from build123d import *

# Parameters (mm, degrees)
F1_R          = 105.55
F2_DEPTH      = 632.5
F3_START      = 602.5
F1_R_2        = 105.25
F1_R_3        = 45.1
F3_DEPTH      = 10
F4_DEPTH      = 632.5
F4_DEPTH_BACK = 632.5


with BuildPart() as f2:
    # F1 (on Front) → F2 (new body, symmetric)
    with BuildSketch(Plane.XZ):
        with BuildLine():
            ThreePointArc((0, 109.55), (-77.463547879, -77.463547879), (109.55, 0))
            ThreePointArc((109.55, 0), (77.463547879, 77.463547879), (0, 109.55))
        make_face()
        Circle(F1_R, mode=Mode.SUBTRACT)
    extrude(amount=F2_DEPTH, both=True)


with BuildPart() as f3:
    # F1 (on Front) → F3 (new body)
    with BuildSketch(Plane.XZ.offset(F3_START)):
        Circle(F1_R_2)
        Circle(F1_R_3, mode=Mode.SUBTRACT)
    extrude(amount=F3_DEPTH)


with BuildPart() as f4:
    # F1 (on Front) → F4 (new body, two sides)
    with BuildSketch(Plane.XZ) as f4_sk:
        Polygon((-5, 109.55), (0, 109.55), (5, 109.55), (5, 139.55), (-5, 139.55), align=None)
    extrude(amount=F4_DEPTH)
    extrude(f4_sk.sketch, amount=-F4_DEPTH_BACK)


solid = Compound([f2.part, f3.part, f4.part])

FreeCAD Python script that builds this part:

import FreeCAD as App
import Part
import Sketcher

V = App.Vector


def add_polygon(sketch, points):
    """Adds a closed chain of lines whose ends are joined by coincident constraints."""
    first, n = sketch.GeometryCount, len(points)
    for a, b in zip(points, points[1:] + points[:1]):
        sketch.addGeometry(Part.LineSegment(App.Vector(*a, 0), App.Vector(*b, 0)), False)
    for i in range(n):
        sketch.addConstraint(Sketcher.Constraint("Coincident", first + i, 2, first + (i + 1) % n, 1))

doc = App.newDocument("Part")
body = doc.addObject("PartDesign::Body", "Body")

sketch1 = body.newObject("Sketcher::SketchObject", "Sketch")
sketch1.AttachmentSupport = (doc.getObject("XZ_Plane"), [""])
sketch1.MapMode = "FlatFace"
sketch1.addGeometry(Part.Circle(V(0, 0, 0), V(0, 0, 1), 110), False)
sketch1.addGeometry(Part.Circle(V(0, 0, 0), V(0, 0, 1), 106), False)
sketch1.addConstraint(Sketcher.Constraint("Coincident", 0, 3, -1, 1))
sketch1.addConstraint(Sketcher.Constraint("Coincident", 1, 3, -1, 1))
sketch1.addConstraint(Sketcher.Constraint("Diameter", 0, 219.1))
sketch1.addConstraint(Sketcher.Constraint("Diameter", 1, 211.1))
pad1 = body.newObject("PartDesign::Pad", "Pad")
pad1.Profile = sketch1
pad1.Length = 1265
pad1.Midplane = True
body2 = doc.addObject("PartDesign::Body", "Body001")

sketch2 = body2.newObject("Sketcher::SketchObject", "Sketch001")
sketch2.AttachmentSupport = (doc.getObject("XZ_Plane001"), [""])
sketch2.MapMode = "FlatFace"
sketch2.AttachmentOffset = App.Placement(V(0, 0, 602.5), App.Rotation())
sketch2.addGeometry(Part.Circle(V(0, 0, 0), V(0, 0, 1), 105), False)
sketch2.addGeometry(Part.Circle(V(0, 0, 0), V(0, 0, 1), 45), False)
sketch2.addConstraint(Sketcher.Constraint("Coincident", 0, 3, -1, 1))
sketch2.addConstraint(Sketcher.Constraint("Coincident", 1, 3, -1, 1))
sketch2.addConstraint(Sketcher.Constraint("Diameter", 0, 210.5))
sketch2.addConstraint(Sketcher.Constraint("Diameter", 1, 90.2))
pad2 = body2.newObject("PartDesign::Pad", "Pad001")
pad2.Profile = sketch2
pad2.Length = 10
body3 = doc.addObject("PartDesign::Body", "Body002")

sketch3 = body3.newObject("Sketcher::SketchObject", "Sketch002")
sketch3.AttachmentSupport = (doc.getObject("XZ_Plane002"), [""])
sketch3.MapMode = "FlatFace"
add_polygon(sketch3, [(-5, 110), (5, 110), (5, 140), (-5, 140)])
sketch3.addConstraint(Sketcher.Constraint("Horizontal", 0))
sketch3.addConstraint(Sketcher.Constraint("Vertical", 1))
sketch3.addConstraint(Sketcher.Constraint("Horizontal", 2))
sketch3.addConstraint(Sketcher.Constraint("Vertical", 3))
sketch3.addConstraint(Sketcher.Constraint("DistanceX", 0, 1, 0, 2, 10.0))
sketch3.addConstraint(Sketcher.Constraint("DistanceY", 1, 1, 1, 2, 30.0))
sketch3.addConstraint(Sketcher.Constraint("DistanceX", -1, 1, 0, 2, 5.0))
sketch3.addConstraint(Sketcher.Constraint("DistanceY", -1, 1, 0, 2, 109.55))
pad3 = body3.newObject("PartDesign::Pad", "Pad002")
pad3.Profile = sketch3
pad3.Type = "TwoLengths"
pad3.Length = 632.5
pad3.Length2 = 632.5

doc.recompute()
